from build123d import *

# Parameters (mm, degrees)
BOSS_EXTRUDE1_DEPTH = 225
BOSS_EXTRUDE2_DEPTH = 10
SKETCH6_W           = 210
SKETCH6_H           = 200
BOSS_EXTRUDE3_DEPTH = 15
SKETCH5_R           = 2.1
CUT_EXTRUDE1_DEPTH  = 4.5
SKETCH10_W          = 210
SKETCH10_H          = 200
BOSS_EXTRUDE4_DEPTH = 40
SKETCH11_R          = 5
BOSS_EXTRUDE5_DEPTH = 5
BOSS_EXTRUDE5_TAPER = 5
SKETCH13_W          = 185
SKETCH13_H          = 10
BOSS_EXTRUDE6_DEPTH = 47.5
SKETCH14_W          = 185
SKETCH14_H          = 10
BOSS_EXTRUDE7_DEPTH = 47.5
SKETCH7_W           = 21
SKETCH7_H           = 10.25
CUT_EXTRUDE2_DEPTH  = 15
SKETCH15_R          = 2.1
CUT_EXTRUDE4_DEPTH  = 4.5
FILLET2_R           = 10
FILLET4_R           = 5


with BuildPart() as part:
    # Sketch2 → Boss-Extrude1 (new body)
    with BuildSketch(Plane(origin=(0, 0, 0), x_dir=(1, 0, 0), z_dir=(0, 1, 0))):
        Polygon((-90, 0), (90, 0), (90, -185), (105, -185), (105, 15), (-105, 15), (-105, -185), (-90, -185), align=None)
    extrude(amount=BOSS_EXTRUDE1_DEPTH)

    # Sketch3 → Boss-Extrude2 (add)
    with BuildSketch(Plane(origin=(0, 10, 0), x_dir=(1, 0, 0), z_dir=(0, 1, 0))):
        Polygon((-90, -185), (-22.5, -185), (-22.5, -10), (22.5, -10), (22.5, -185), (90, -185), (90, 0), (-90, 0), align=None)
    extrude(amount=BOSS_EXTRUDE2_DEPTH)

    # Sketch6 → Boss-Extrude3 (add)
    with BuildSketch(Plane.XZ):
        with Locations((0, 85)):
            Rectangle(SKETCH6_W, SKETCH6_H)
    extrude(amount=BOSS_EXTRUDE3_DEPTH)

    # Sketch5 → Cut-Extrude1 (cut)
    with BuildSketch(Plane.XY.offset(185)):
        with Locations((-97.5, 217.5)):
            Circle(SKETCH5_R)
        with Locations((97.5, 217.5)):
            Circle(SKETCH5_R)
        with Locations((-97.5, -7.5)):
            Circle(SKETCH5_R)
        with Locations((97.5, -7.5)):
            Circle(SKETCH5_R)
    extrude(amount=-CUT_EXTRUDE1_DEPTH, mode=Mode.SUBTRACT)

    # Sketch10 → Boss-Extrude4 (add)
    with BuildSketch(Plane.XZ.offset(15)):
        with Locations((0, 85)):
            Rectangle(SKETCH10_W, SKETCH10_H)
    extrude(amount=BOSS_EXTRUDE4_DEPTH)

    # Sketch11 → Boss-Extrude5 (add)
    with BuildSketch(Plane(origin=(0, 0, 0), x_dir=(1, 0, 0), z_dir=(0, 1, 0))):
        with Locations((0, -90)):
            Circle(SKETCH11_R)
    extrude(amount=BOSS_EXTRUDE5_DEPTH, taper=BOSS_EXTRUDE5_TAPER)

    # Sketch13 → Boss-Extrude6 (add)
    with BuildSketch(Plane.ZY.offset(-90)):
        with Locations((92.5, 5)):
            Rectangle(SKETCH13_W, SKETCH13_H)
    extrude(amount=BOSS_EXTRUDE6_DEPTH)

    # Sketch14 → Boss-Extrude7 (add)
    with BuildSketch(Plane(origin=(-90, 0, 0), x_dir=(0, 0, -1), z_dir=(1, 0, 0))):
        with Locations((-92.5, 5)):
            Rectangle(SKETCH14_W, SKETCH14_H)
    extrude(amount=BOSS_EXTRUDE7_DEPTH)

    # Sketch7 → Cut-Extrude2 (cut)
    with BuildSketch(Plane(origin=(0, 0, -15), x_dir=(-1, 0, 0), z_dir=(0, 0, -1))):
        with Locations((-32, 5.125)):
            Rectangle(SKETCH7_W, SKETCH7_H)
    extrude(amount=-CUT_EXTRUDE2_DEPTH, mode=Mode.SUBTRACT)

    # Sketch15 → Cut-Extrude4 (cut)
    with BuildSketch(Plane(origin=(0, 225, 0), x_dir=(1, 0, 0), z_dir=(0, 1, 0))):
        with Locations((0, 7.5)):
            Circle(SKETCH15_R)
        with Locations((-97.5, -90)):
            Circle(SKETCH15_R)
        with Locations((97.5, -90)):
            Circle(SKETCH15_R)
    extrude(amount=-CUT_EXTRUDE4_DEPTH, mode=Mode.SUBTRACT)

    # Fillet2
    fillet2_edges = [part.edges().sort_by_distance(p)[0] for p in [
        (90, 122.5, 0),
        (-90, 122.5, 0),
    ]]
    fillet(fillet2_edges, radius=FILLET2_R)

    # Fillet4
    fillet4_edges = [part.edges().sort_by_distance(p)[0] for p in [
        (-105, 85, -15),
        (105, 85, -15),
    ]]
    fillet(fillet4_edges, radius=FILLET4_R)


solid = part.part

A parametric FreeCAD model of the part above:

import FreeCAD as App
import Part
import Sketcher


def edges_at(feature, points):
    """Names of the edges that pass closest to the given points."""
    edges = feature.Shape.Edges
    near = lambda p: min(range(len(edges)), key=lambda i: edges[i].distToShape(Part.Vertex(*p))[0])
    return sorted({f"Edge{near(p) + 1}" for p in points})

doc = App.newDocument("Part")
params = doc.addObject("Spreadsheet::Sheet", "Params")
for row, (alias, value) in enumerate([
    ("sketch1_width", "180 mm"),
    ("sketch1_width2", "15 mm"),
    ("sketch1_height", "185 mm"),
    ("sketch1_height2", "200 mm"),
    ("pad1_length", "225 mm"),
    ("sketch2_width", "45 mm"),
    ("sketch2_width2", "180 mm"),
    ("sketch2_height", "175 mm"),
    ("sketch2_height2", "185 mm"),
    ("pad2_length", "10 mm"),
    ("sketch3_width", "210 mm"),
    ("sketch3_height", "200 mm"),
    ("pad3_length", "15 mm"),
    ("sketch4_diameter", "4.2 mm"),
    ("pocket1_length", "4.5 mm"),
    ("sketch5_width", "210 mm"),
    ("sketch5_height", "200 mm"),
    ("pad4_length", "40 mm"),
    ("sketch6_diameter", "10 mm"),
    ("pad5_length", "5 mm"),
    ("pad5_taper", "-5 deg"),
    ("sketch7_width", "10 mm"),
    ("sketch7_height", "185 mm"),
    ("pad6_length", "47.5 mm"),
    ("sketch8_width", "10 mm"),
    ("sketch8_height", "185 mm"),
    ("pad7_length", "47.5 mm"),
    ("sketch9_width", "21 mm"),
    ("sketch9_height", "10.25 mm"),
    ("pocket2_length", "15 mm"),
    ("sketch10_diameter", "4.2 mm"),
    ("pocket3_length", "4.5 mm"),
    ("fillet_radius", "10 mm"),
    ("fillet2_radius", "5 mm"),
], start=1):
    params.set(f"A{row}", alias)
    params.set(f"B{row}", "=" + value)
    params.setAlias(f"B{row}", alias)

body = doc.addObject("PartDesign::Body", "Body")

# Sketch on XZ plane
sketch1 = doc.addObject("Sketcher::SketchObject", "Sketch")
body.addObject(sketch1)
sketch1.AttachmentSupport = (doc.XZ_Plane, [""])
sketch1.MapMode = "FlatFace"
sketch1.addGeometry(Part.LineSegment(App.Vector(-90, 0, 0), App.Vector(90, 0, 0)), False)
sketch1.addGeometry(Part.LineSegment(App.Vector(90, 0, 0), App.Vector(90, 185, 0)), False)
sketch1.addGeometry(Part.LineSegment(App.Vector(90, 185, 0), App.Vector(105, 185, 0)), False)
sketch1.addGeometry(Part.LineSegment(App.Vector(105, 185, 0), App.Vector(105, -15, 0)), False)
sketch1.addGeometry(Part.LineSegment(App.Vector(105, -15, 0), App.Vector(-105, -15, 0)), False)
sketch1.addGeometry(Part.LineSegment(App.Vector(-105, -15, 0), App.Vector(-105, 185, 0)), False)
sketch1.addGeometry(Part.LineSegment(App.Vector(-105, 185, 0), App.Vector(-90, 185, 0)), False)
sketch1.addGeometry(Part.LineSegment(App.Vector(-90, 185, 0), App.Vector(-90, 0, 0)), False)
sketch1.addConstraint(Sketcher.Constraint("Coincident", 0, 2, 1, 1))
sketch1.addConstraint(Sketcher.Constraint("Coincident", 1, 2, 2, 1))
sketch1.addConstraint(Sketcher.Constraint("Coincident", 2, 2, 3, 1))
sketch1.addConstraint(Sketcher.Constraint("Coincident", 3, 2, 4, 1))
sketch1.addConstraint(Sketcher.Constraint("Coincident", 4, 2, 5, 1))
sketch1.addConstraint(Sketcher.Constraint("Coincident", 5, 2, 6, 1))
sketch1.addConstraint(Sketcher.Constraint("Coincident", 6, 2, 7, 1))
sketch1.addConstraint(Sketcher.Constraint("Coincident", 7, 2, 0, 1))
sketch1.addConstraint(Sketcher.Constraint("Horizontal", 0))
sketch1.addConstraint(Sketcher.Constraint("Vertical", 1))
sketch1.addConstraint(Sketcher.Constraint("Horizontal", 2))
sketch1.addConstraint(Sketcher.Constraint("Vertical", 3))
sketch1.addConstraint(Sketcher.Constraint("Horizontal", 4))
sketch1.addConstraint(Sketcher.Constraint("Vertical", 5))
sketch1.addConstraint(Sketcher.Constraint("Horizontal", 6))
sketch1.addConstraint(Sketcher.Constraint("Vertical", 7))
sketch1.addConstraint(Sketcher.Constraint("Symmetric", 0, 2, 7, 2, -1, 1))
sketch1.addConstraint(Sketcher.Constraint("Symmetric", 2, 2, 5, 2, -2))
sketch1.addConstraint(Sketcher.Constraint("DistanceX", 0, 1, 0, 2, 180.0))
sketch1.addConstraint(Sketcher.Constraint("DistanceX", 2, 1, 2, 2, 15.0))
sketch1.addConstraint(Sketcher.Constraint("DistanceY", 1, 1, 1, 2, 185.0))
sketch1.addConstraint(Sketcher.Constraint("DistanceY", 3, 2, 3, 1, 200.0))
sketch1.setExpression("Constraints[18]", "Params.sketch1_width")
sketch1.setExpression("Constraints[19]", "Params.sketch1_width2")
sketch1.setExpression("Constraints[20]", "Params.sketch1_height")
sketch1.setExpression("Constraints[21]", "Params.sketch1_height2")
pad1 = doc.addObject("PartDesign::Pad", "Pad")
body.addObject(pad1)
pad1.Profile = sketch1
pad1.setExpression("Length", "Params.pad1_length")
pad1.Reversed = True

# Sketch on XZ plane
sketch2 = doc.addObject("Sketcher::SketchObject", "Sketch001")
body.addObject(sketch2)
sketch2.AttachmentSupport = (doc.XZ_Plane, [""])
sketch2.MapMode = "FlatFace"
sketch2.AttachmentOffset = App.Placement(App.Vector(0, 0, -10), App.Rotation())
sketch2.addGeometry(Part.LineSegment(App.Vector(-90, 185, 0), App.Vector(-22, 185, 0)), False)
sketch2.addGeometry(Part.LineSegment(App.Vector(-22, 185, 0), App.Vector(-22, 10, 0)), False)
sketch2.addGeometry(Part.LineSegment(App.Vector(-22, 10, 0), App.Vector(22, 10, 0)), False)
sketch2.addGeometry(Part.LineSegment(App.Vector(22, 10, 0), App.Vector(22, 185, 0)), False)
sketch2.addGeometry(Part.LineSegment(App.Vector(22, 185, 0), App.Vector(90, 185, 0)), False)
sketch2.addGeometry(Part.LineSegment(App.Vector(90, 185, 0), App.Vector(90, 0, 0)), False)
sketch2.addGeometry(Part.LineSegment(App.Vector(90, 0, 0), App.Vector(-90, 0, 0)), False)
sketch2.addGeometry(Part.LineSegment(App.Vector(-90, 0, 0), App.Vector(-90, 185, 0)), False)
sketch2.addConstraint(Sketcher.Constraint("Coincident", 0, 2, 1, 1))
sketch2.addConstraint(Sketcher.Constraint("Coincident", 1, 2, 2, 1))
sketch2.addConstraint(Sketcher.Constraint("Coincident", 2, 2, 3, 1))
sketch2.addConstraint(Sketcher.Constraint("Coincident", 3, 2, 4, 1))
sketch2.addConstraint(Sketcher.Constraint("Coincident", 4, 2, 5, 1))
sketch2.addConstraint(Sketcher.Constraint("Coincident", 5, 2, 6, 1))
sketch2.addConstraint(Sketcher.Constraint("Coincident", 6, 2, 7, 1))
sketch2.addConstraint(Sketcher.Constraint("Coincident", 7, 2, 0, 1))
sketch2.addConstraint(Sketcher.Constraint("Horizontal", 0))
sketch2.addConstraint(Sketcher.Constraint("Vertical", 1))
sketch2.addConstraint(Sketcher.Constraint("Horizontal", 2))
sketch2.addConstraint(Sketcher.Constraint("Vertical", 3))
sketch2.addConstraint(Sketcher.Constraint("Horizontal", 4))
sketch2.addConstraint(Sketcher.Constraint("Vertical", 5))
sketch2.addConstraint(Sketcher.Constraint("Horizontal", 6))
sketch2.addConstraint(Sketcher.Constraint("Vertical", 7))
sketch2.addConstraint(Sketcher.Constraint("Symmetric", 5, 2, 6, 2, -1, 1))
sketch2.addConstraint(Sketcher.Constraint("Symmetric", 0, 2, 3, 2, -2))
sketch2.addConstraint(Sketcher.Constraint("DistanceX", 2, 1, 2, 2, 45.0))
sketch2.addConstraint(Sketcher.Constraint("DistanceX", 6, 2, 6, 1, 180.0))
sketch2.addConstraint(Sketcher.Constraint("DistanceY", 1, 2, 1, 1, 175.0))
sketch2.addConstraint(Sketcher.Constraint("DistanceY", 5, 2, 5, 1, 185.0))
sketch2.setExpression("Constraints[18]", "Params.sketch2_width")
sketch2.setExpression("Constraints[19]", "Params.sketch2_width2")
sketch2.setExpression("Constraints[20]", "Params.sketch2_height")
sketch2.setExpression("Constraints[21]", "Params.sketch2_height2")
pad2 = doc.addObject("PartDesign::Pad", "Pad001")
body.addObject(pad2)
pad2.Profile = sketch2
pad2.setExpression("Length", "Params.pad2_length")
pad2.Reversed = True

# Sketch on XZ plane
sketch3 = doc.addObject("Sketcher::SketchObject", "Sketch002")
body.addObject(sketch3)
sketch3.AttachmentSupport = (doc.XZ_Plane, [""])
sketch3.MapMode = "FlatFace"
sketch3.addGeometry(Part.LineSegment(App.Vector(-105, 185, 0), App.Vector(-105, -15, 0)), False)
sketch3.addGeometry(Part.LineSegment(App.Vector(-105, -15, 0), App.Vector(105, -15, 0)), False)
sketch3.addGeometry(Part.LineSegment(App.Vector(105, -15, 0), App.Vector(105, 185, 0)), False)
sketch3.addGeometry(Part.LineSegment(App.Vector(105, 185, 0), App.Vector(-105, 185, 0)), False)
sketch3.addConstraint(Sketcher.Constraint("Coincident", 0, 2, 1, 1))
sketch3.addConstraint(Sketcher.Constraint("Coincident", 1, 2, 2, 1))
sketch3.addConstraint(Sketcher.Constraint("Coincident", 2, 2, 3, 1))
sketch3.addConstraint(Sketcher.Constraint("Coincident", 3, 2, 0, 1))
sketch3.addConstraint(Sketcher.Constraint("Vertical", 0))
sketch3.addConstraint(Sketcher.Constraint("Horizontal", 1))
sketch3.addConstraint(Sketcher.Constraint("Vertical", 2))
sketch3.addConstraint(Sketcher.Constraint("Horizontal", 3))
sketch3.addConstraint(Sketcher.Constraint("DistanceX", 1, 1, 1, 2, 210.0))
sketch3.addConstraint(Sketcher.Constraint("DistanceY", 0, 2, 0, 1, 200.0))
sketch3.addConstraint(Sketcher.Constraint("DistanceX", 0, 2, -1, 1, 105.0))
sketch3.addConstraint(Sketcher.Constraint("DistanceY", 0, 2, -1, 1, 15.0))
sketch3.setExpression("Constraints[8]", "Params.sketch3_width")
sketch3.setExpression("Constraints[9]", "Params.sketch3_height")
pad3 = doc.addObject("PartDesign::Pad", "Pad002")
body.addObject(pad3)
pad3.Profile = sketch3
pad3.setExpression("Length", "Params.pad3_length")

# Sketch on XY plane
sketch4 = doc.addObject("Sketcher::SketchObject", "Sketch003")
body.addObject(sketch4)
sketch4.AttachmentSupport = (doc.XY_Plane, [""])
sketch4.MapMode = "FlatFace"
sketch4.AttachmentOffset = App.Placement(App.Vector(0, 0, 185), App.Rotation())
sketch4.addGeometry(Part.Circle(App.Vector(-97.5, 217.5, 0), App.Vector(0, 0, 1), 2.1), False)
sketch4.addGeometry(Part.Circle(App.Vector(97.5, 217.5, 0), App.Vector(0, 0, 1), 2.1), False)
sketch4.addGeometry(Part.Circle(App.Vector(-97.5, -7.5, 0), App.Vector(0, 0, 1), 2.1), False)
sketch4.addGeometry(Part.Circle(App.Vector(97.5, -7.5, 0), App.Vector(0, 0, 1), 2.1), False)
sketch4.addConstraint(Sketcher.Constraint("Equal", 0, 1))
sketch4.addConstraint(Sketcher.Constraint("Equal", 1, 2))
sketch4.addConstraint(Sketcher.Constraint("Equal", 2, 3))
sketch4.addConstraint(Sketcher.Constraint("Symmetric", 0, 3, 1, 3, -2))
sketch4.addConstraint(Sketcher.Constraint("Symmetric", 2, 3, 3, 3, -2))
sketch4.addConstraint(Sketcher.Constraint("Vertical", 0, 3, 2, 3))
sketch4.addConstraint(Sketcher.Constraint("Diameter", 0, 4.2))
sketch4.addConstraint(Sketcher.Constraint("DistanceX", 0, 3, 1, 3, 195.0))
sketch4.addConstraint(Sketcher.Constraint("DistanceY", 2, 3, 0, 3, 225.0))
sketch4.addConstraint(Sketcher.Constraint("DistanceY", -1, 1, 0, 3, 217.5))
sketch4.setExpression("Constraints[6]", "Params.sketch4_diameter")
pocket1 = doc.addObject("PartDesign::Pocket", "Pocket")
body.addObject(pocket1)
pocket1.Profile = sketch4
pocket1.setExpression("Length", "Params.pocket1_length")

# Sketch on XZ plane
sketch5 = doc.addObject("Sketcher::SketchObject", "Sketch004")
body.addObject(sketch5)
sketch5.AttachmentSupport = (doc.XZ_Plane, [""])
sketch5.MapMode = "FlatFace"
sketch5.AttachmentOffset = App.Placement(App.Vector(0, 0, 15), App.Rotation())
sketch5.addGeometry(Part.LineSegment(App.Vector(-105, 185, 0), App.Vector(-105, -15, 0)), False)
sketch5.addGeometry(Part.LineSegment(App.Vector(-105, -15, 0), App.Vector(105, -15, 0)), False)
sketch5.addGeometry(Part.LineSegment(App.Vector(105, -15, 0), App.Vector(105, 185, 0)), False)
sketch5.addGeometry(Part.LineSegment(App.Vector(105, 185, 0), App.Vector(-105, 185, 0)), False)
sketch5.addConstraint(Sketcher.Constraint("Coincident", 0, 2, 1, 1))
sketch5.addConstraint(Sketcher.Constraint("Coincident", 1, 2, 2, 1))
sketch5.addConstraint(Sketcher.Constraint("Coincident", 2, 2, 3, 1))
sketch5.addConstraint(Sketcher.Constraint("Coincident", 3, 2, 0, 1))
sketch5.addConstraint(Sketcher.Constraint("Vertical", 0))
sketch5.addConstraint(Sketcher.Constraint("Horizontal", 1))
sketch5.addConstraint(Sketcher.Constraint("Vertical", 2))
sketch5.addConstraint(Sketcher.Constraint("Horizontal", 3))
sketch5.addConstraint(Sketcher.Constraint("DistanceX", 1, 1, 1, 2, 210.0))
sketch5.addConstraint(Sketcher.Constraint("DistanceY", 0, 2, 0, 1, 200.0))
sketch5.addConstraint(Sketcher.Constraint("DistanceX", 0, 2, -1, 1, 105.0))
sketch5.addConstraint(Sketcher.Constraint("DistanceY", 0, 2, -1, 1, 15.0))
sketch5.setExpression("Constraints[8]", "Params.sketch5_width")
sketch5.setExpression("Constraints[9]", "Params.sketch5_height")
pad4 = doc.addObject("PartDesign::Pad", "Pad003")
body.addObject(pad4)
pad4.Profile = sketch5
pad4.setExpression("Length", "Params.pad4_length")

# Sketch on XZ plane
sketch6 = doc.addObject("Sketcher::SketchObject", "Sketch005")
body.addObject(sketch6)
sketch6.AttachmentSupport = (doc.XZ_Plane, [""])
sketch6.MapMode = "FlatFace"
sketch6.addGeometry(Part.Circle(App.Vector(0, 90, 0), App.Vector(0, 0, 1), 5), False)
sketch6.addConstraint(Sketcher.Constraint("PointOnObject", 0, 3, -2))
sketch6.addConstraint(Sketcher.Constraint("Diameter", 0, 10.0))
sketch6.addConstraint(Sketcher.Constraint("DistanceY", -1, 1, 0, 3, 90.0))
sketch6.setExpression("Constraints[1]", "Params.sketch6_diameter")
pad5 = doc.addObject("PartDesign::Pad", "Pad004")
body.addObject(pad5)
pad5.Profile = sketch6
pad5.setExpression("Length", "Params.pad5_length")
pad5.Reversed = True
pad5.setExpression("TaperAngle", "Params.pad5_taper")

# Sketch on YZ plane
sketch7 = doc.addObject("Sketcher::SketchObject", "Sketch006")
body.addObject(sketch7)
sketch7.AttachmentSupport = (doc.YZ_Plane, [""])
sketch7.MapMode = "FlatFace"
sketch7.AttachmentOffset = App.Placement(App.Vector(0, 0, 90), App.Rotation())
sketch7.addGeometry(Part.LineSegment(App.Vector(10, 0, 0), App.Vector(0, 0, 0)), False)
sketch7.addGeometry(Part.LineSegment(App.Vector(0, 0, 0), App.Vector(0, 185, 0)), False)
sketch7.addGeometry(Part.LineSegment(App.Vector(0, 185, 0), App.Vector(10, 185, 0)), False)
sketch7.addGeometry(Part.LineSegment(App.Vector(10, 185, 0), App.Vector(10, 0, 0)), False)
sketch7.addConstraint(Sketcher.Constraint("Coincident", 0, 2, 1, 1))
sketch7.addConstraint(Sketcher.Constraint("Coincident", 1, 2, 2, 1))
sketch7.addConstraint(Sketcher.Constraint("Coincident", 2, 2, 3, 1))
sketch7.addConstraint(Sketcher.Constraint("Coincident", 3, 2, 0, 1))
sketch7.addConstraint(Sketcher.Constraint("Horizontal", 0))
sketch7.addConstraint(Sketcher.Constraint("Vertical", 1))
sketch7.addConstraint(Sketcher.Constraint("Horizontal", 2))
sketch7.addConstraint(Sketcher.Constraint("Vertical", 3))
sketch7.addConstraint(Sketcher.Constraint("Coincident", 0, 2, -1, 1))
sketch7.addConstraint(Sketcher.Constraint("DistanceX", 0, 2, 0, 1, 10.0))
sketch7.addConstraint(Sketcher.Constraint("DistanceY", 1, 1, 1, 2, 185.0))
sketch7.setExpression("Constraints[9]", "Params.sketch7_width")
sketch7.setExpression("Constraints[10]", "Params.sketch7_height")
pad6 = doc.addObject("PartDesign::Pad", "Pad005")
body.addObject(pad6)
pad6.Profile = sketch7
pad6.setExpression("Length", "Params.pad6_length")
pad6.Reversed = True

# Sketch on YZ plane
sketch8 = doc.addObject("Sketcher::SketchObject", "Sketch007")
body.addObject(sketch8)
sketch8.AttachmentSupport = (doc.YZ_Plane, [""])
sketch8.MapMode = "FlatFace"
sketch8.AttachmentOffset = App.Placement(App.Vector(0, 0, -90), App.Rotation())
sketch8.addGeometry(Part.LineSegment(App.Vector(10, 185, 0), App.Vector(0, 185, 0)), False)
sketch8.addGeometry(Part.LineSegment(App.Vector(0, 185, 0), App.Vector(0, 0, 0)), False)
sketch8.addGeometry(Part.LineSegment(App.Vector(0, 0, 0), App.Vector(10, 0, 0)), False)
sketch8.addGeometry(Part.LineSegment(App.Vector(10, 0, 0), App.Vector(10, 185, 0)), False)
sketch8.addConstraint(Sketcher.Constraint("Coincident", 0, 2, 1, 1))
sketch8.addConstraint(Sketcher.Constraint("Coincident", 1, 2, 2, 1))
sketch8.addConstraint(Sketcher.Constraint("Coincident", 2, 2, 3, 1))
sketch8.addConstraint(Sketcher.Constraint("Coincident", 3, 2, 0, 1))
sketch8.addConstraint(Sketcher.Constraint("Horizontal", 0))
sketch8.addConstraint(Sketcher.Constraint("Vertical", 1))
sketch8.addConstraint(Sketcher.Constraint("Horizontal", 2))
sketch8.addConstraint(Sketcher.Constraint("Vertical", 3))
sketch8.addConstraint(Sketcher.Constraint("Coincident", 1, 2, -1, 1))
sketch8.addConstraint(Sketcher.Constraint("DistanceX", 0, 2, 0, 1, 10.0))
sketch8.addConstraint(Sketcher.Constraint("DistanceY", 1, 2, 1, 1, 185.0))
sketch8.setExpression("Constraints[9]", "Params.sketch8_width")
sketch8.setExpression("Constraints[10]", "Params.sketch8_height")
pad7 = doc.addObject("PartDesign::Pad", "Pad006")
body.addObject(pad7)
pad7.Profile = sketch8
pad7.setExpression("Length", "Params.pad7_length")

# Sketch on XY plane
sketch9 = doc.addObject("Sketcher::SketchObject", "Sketch008")
body.addObject(sketch9)
sketch9.AttachmentSupport = (doc.XY_Plane, [""])
sketch9.MapMode = "FlatFace"
sketch9.AttachmentOffset = App.Placement(App.Vector(0, 0, -15), App.Rotation())
sketch9.addGeometry(Part.LineSegment(App.Vector(42, 10, 0), App.Vector(42, 0, 0)), False)
sketch9.addGeometry(Part.LineSegment(App.Vector(42, 0, 0), App.Vector(22, 0, 0)), False)
sketch9.addGeometry(Part.LineSegment(App.Vector(22, 0, 0), App.Vector(22, 10, 0)), False)
sketch9.addGeometry(Part.LineSegment(App.Vector(22, 10, 0), App.Vector(42, 10, 0)), False)
sketch9.addConstraint(Sketcher.Constraint("Coincident", 0, 2, 1, 1))
sketch9.addConstraint(Sketcher.Constraint("Coincident", 1, 2, 2, 1))
sketch9.addConstraint(Sketcher.Constraint("Coincident", 2, 2, 3, 1))
sketch9.addConstraint(Sketcher.Constraint("Coincident", 3, 2, 0, 1))
sketch9.addConstraint(Sketcher.Constraint("Vertical", 0))
sketch9.addConstraint(Sketcher.Constraint("Horizontal", 1))
sketch9.addConstraint(Sketcher.Constraint("Vertical", 2))
sketch9.addConstraint(Sketcher.Constraint("Horizontal", 3))
sketch9.addConstraint(Sketcher.Constraint("PointOnObject", 0, 2, -1))
sketch9.addConstraint(Sketcher.Constraint("DistanceX", 1, 2, 1, 1, 21.0))
sketch9.addConstraint(Sketcher.Constraint("DistanceY", 0, 2, 0, 1, 10.25))
sketch9.addConstraint(Sketcher.Constraint("DistanceX", -1, 1, 0, 2, 42.5))
sketch9.setExpression("Constraints[9]", "Params.sketch9_width")
sketch9.setExpression("Constraints[10]", "Params.sketch9_height")
pocket2 = doc.addObject("PartDesign::Pocket", "Pocket001")
body.addObject(pocket2)
pocket2.Profile = sketch9
pocket2.setExpression("Length", "Params.pocket2_length")
pocket2.Reversed = True

# Sketch on XZ plane
sketch10 = doc.addObject("Sketcher::SketchObject", "Sketch009")
body.addObject(sketch10)
sketch10.AttachmentSupport = (doc.XZ_Plane, [""])
sketch10.MapMode = "FlatFace"
sketch10.AttachmentOffset = App.Placement(App.Vector(0, 0, -225), App.Rotation())
sketch10.addGeometry(Part.Circle(App.Vector(0, -7.5, 0), App.Vector(0, 0, 1), 2.1), False)
sketch10.addGeometry(Part.Circle(App.Vector(-97.5, 90, 0), App.Vector(0, 0, 1), 2.1), False)
sketch10.addGeometry(Part.Circle(App.Vector(97.5, 90, 0), App.Vector(0, 0, 1), 2.1), False)
sketch10.addConstraint(Sketcher.Constraint("Equal", 0, 1))
sketch10.addConstraint(Sketcher.Constraint("Equal", 1, 2))
sketch10.addConstraint(Sketcher.Constraint("Symmetric", 1, 3, 2, 3, -2))
sketch10.addConstraint(Sketcher.Constraint("PointOnObject", 0, 3, -2))
sketch10.addConstraint(Sketcher.Constraint("Diameter", 0, 4.2))
sketch10.addConstraint(Sketcher.Constraint("DistanceY", -1, 1, 1, 3, 90.0))
sketch10.addConstraint(Sketcher.Constraint("DistanceX", 1, 3, 2, 3, 195.0))
sketch10.addConstraint(Sketcher.Constraint("DistanceY", 0, 3, -1, 1, 7.5))
sketch10.setExpression("Constraints[4]", "Params.sketch10_diameter")
pocket3 = doc.addObject("PartDesign::Pocket", "Pocket002")
body.addObject(pocket3)
pocket3.Profile = sketch10
pocket3.setExpression("Length", "Params.pocket3_length")
pocket3.Reversed = True
doc.recompute()

fillet = doc.addObject("PartDesign::Fillet", "Fillet")
body.addObject(fillet)
fillet.Base = (pocket3, edges_at(pocket3, [(90, 122.5, 0), (-90, 122.5, 0)]))
fillet.setExpression("Radius", "Params.fillet_radius")
doc.recompute()

fillet2 = doc.addObject("PartDesign::Fillet", "Fillet001")
body.addObject(fillet2)
fillet2.Base = (fillet, edges_at(fillet, [(-105, 85, -15), (105, 85, -15)]))
fillet2.setExpression("Radius", "Params.fillet2_radius")

doc.recompute()
